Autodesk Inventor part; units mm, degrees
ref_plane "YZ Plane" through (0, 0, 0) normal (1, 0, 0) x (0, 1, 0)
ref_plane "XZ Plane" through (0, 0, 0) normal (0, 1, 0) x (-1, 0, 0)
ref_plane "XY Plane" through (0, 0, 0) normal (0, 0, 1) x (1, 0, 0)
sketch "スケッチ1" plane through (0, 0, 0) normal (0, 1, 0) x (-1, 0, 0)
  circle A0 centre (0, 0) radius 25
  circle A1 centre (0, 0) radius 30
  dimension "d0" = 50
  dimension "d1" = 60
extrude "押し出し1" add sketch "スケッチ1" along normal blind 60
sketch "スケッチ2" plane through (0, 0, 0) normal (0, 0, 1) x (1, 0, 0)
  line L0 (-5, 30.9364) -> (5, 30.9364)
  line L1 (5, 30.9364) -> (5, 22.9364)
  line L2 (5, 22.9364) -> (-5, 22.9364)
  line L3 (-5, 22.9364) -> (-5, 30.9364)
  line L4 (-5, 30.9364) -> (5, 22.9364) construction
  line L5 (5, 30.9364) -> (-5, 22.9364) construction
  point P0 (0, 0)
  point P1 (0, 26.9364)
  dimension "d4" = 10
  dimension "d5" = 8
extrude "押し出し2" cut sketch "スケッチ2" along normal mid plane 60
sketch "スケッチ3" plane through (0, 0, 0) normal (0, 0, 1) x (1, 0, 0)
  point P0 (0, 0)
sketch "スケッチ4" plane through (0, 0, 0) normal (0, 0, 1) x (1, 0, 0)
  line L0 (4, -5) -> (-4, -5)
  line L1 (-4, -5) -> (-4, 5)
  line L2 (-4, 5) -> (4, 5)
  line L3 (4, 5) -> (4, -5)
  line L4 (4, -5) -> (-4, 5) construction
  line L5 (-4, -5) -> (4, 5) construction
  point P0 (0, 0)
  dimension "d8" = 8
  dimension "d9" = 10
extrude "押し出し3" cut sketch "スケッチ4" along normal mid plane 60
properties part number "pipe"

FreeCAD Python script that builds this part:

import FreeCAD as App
import Part
import Sketcher


def add_polygon(sketch, points):
    """Adds a closed chain of lines whose ends are joined by coincident constraints."""
    first, n = sketch.GeometryCount, len(points)
    for a, b in zip(points, points[1:] + points[:1]):
        sketch.addGeometry(Part.LineSegment(App.Vector(*a, 0), App.Vector(*b, 0)), False)
    for i in range(n):
        sketch.addConstraint(Sketcher.Constraint("Coincident", first + i, 2, first + (i + 1) % n, 1))

doc = App.newDocument("Part")
body = doc.addObject("PartDesign::Body", "Body")

sketch1 = body.newObject("Sketcher::SketchObject", "Sketch")
sketch1.AttachmentSupport = (doc.getObject("XZ_Plane"), [""])
sketch1.MapMode = "FlatFace"
sketch1.addGeometry(Part.Circle(App.Vector(0, 0, 0), App.Vector(0, 0, 1), 30), False)
sketch1.addGeometry(Part.Circle(App.Vector(0, 0, 0), App.Vector(0, 0, 1), 25), False)
sketch1.addConstraint(Sketcher.Constraint("Coincident", 0, 3, -1, 1))
sketch1.addConstraint(Sketcher.Constraint("Coincident", 1, 3, -1, 1))
sketch1.addConstraint(Sketcher.Constraint("Diameter", 0, 60.0))
sketch1.addConstraint(Sketcher.Constraint("Diameter", 1, 50.0))
pad1 = body.newObject("PartDesign::Pad", "Pad")
pad1.Profile = sketch1
pad1.Length = 60
pad1.Reversed = True

sketch2 = body.newObject("Sketcher::SketchObject", "Sketch001")
sketch2.AttachmentSupport = (doc.getObject("XY_Plane"), [""])
sketch2.MapMode = "FlatFace"
add_polygon(sketch2, [(5, 31), (-5, 31), (-5, 23), (5, 23)])
sketch2.addConstraint(Sketcher.Constraint("Horizontal", 0))
sketch2.addConstraint(Sketcher.Constraint("Vertical", 1))
sketch2.addConstraint(Sketcher.Constraint("Horizontal", 2))
sketch2.addConstraint(Sketcher.Constraint("Vertical", 3))
sketch2.addConstraint(Sketcher.Constraint("DistanceX", 0, 2, 0, 1, 10.0))
sketch2.addConstraint(Sketcher.Constraint("DistanceY", 1, 2, 1, 1, 8.0))
sketch2.addConstraint(Sketcher.Constraint("DistanceX", 0, 2, -1, 1, 5.0))
sketch2.addConstraint(Sketcher.Constraint("DistanceY", -1, 1, 0, 2, 30.9364))
pocket1 = body.newObject("PartDesign::Pocket", "Pocket")
pocket1.Profile = sketch2
pocket1.Length = 60
pocket1.Midplane = True

sketch3 = body.newObject("Sketcher::SketchObject", "Sketch002")
sketch3.AttachmentSupport = (doc.getObject("XY_Plane"), [""])
sketch3.MapMode = "FlatFace"
add_polygon(sketch3, [(-4, -5), (4, -5), (4, 5), (-4, 5)])
sketch3.addConstraint(Sketcher.Constraint("Horizontal", 0))
sketch3.addConstraint(Sketcher.Constraint("Vertical", 1))
sketch3.addConstraint(Sketcher.Constraint("Horizontal", 2))
sketch3.addConstraint(Sketcher.Constraint("Vertical", 3))
sketch3.addConstraint(Sketcher.Constraint("Symmetric", 0, 2, 2, 2, -1, 1))
sketch3.addConstraint(Sketcher.Constraint("DistanceX", 0, 1, 0, 2, 8.0))
sketch3.addConstraint(Sketcher.Constraint("DistanceY", 1, 1, 1, 2, 10.0))
pocket2 = body.newObject("PartDesign::Pocket", "Pocket001")
pocket2.Profile = sketch3
pocket2.Length = 60
pocket2.Midplane = True

doc.recompute()
